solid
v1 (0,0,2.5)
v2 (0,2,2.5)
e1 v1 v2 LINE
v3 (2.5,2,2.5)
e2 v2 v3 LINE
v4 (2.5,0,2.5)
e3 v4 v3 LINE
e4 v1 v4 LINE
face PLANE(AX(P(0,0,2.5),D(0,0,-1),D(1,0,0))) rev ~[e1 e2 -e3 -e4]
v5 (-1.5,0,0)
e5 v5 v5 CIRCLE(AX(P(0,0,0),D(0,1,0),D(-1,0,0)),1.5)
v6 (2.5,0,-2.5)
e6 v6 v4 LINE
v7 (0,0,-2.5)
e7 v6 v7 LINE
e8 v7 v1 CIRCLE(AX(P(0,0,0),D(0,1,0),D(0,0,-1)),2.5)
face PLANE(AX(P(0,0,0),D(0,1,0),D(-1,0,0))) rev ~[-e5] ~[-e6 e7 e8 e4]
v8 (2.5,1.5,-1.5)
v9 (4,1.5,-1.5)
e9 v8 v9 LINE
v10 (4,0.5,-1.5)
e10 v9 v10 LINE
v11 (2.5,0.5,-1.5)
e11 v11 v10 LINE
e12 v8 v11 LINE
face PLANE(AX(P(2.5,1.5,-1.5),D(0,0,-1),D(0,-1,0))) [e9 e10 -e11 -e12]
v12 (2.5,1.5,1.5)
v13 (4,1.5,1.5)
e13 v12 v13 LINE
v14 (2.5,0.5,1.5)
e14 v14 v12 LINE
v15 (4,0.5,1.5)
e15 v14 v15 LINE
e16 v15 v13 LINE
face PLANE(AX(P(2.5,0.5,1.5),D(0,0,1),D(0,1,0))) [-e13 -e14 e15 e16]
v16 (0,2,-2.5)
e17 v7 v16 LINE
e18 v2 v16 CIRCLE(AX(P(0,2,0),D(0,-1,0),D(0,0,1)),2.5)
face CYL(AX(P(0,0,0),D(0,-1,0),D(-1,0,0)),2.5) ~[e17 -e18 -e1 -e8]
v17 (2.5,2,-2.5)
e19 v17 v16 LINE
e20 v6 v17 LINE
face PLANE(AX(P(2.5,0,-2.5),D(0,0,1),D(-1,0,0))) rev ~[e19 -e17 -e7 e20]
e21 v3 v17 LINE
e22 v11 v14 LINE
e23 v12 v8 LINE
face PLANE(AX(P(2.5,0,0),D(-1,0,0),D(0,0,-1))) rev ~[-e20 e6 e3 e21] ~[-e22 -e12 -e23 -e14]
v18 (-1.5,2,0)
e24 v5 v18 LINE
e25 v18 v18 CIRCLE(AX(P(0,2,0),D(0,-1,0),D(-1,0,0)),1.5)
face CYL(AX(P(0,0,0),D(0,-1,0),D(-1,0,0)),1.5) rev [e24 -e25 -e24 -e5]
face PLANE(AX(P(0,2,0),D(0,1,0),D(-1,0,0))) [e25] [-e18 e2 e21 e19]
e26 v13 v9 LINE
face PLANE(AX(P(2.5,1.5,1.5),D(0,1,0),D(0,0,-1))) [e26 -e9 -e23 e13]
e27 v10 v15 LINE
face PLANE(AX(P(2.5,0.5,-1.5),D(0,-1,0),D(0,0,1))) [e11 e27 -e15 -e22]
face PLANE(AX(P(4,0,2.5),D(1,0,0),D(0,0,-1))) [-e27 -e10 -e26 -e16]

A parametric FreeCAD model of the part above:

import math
import FreeCAD as App
import Part
import Sketcher
Q = App.Units.Quantity

doc = App.newDocument("Part")
body = doc.addObject("PartDesign::Body", "Body")

sketch1 = body.newObject("Sketcher::SketchObject", "Sketch")
sketch1.AttachmentSupport = (doc.getObject("XZ_Plane"), [""])
sketch1.MapMode = "FlatFace"
sketch1.addGeometry([
    Part.LineSegment(App.Vector(0, 2.5, 0), App.Vector(2.5, 2.5, 0)),
    Part.LineSegment(App.Vector(2.5, 2.5, 0), App.Vector(2.5, -2.5, 0)),
    Part.LineSegment(App.Vector(2.5, -2.5, 0), App.Vector(0, -2.5, 0)),
    Part.ArcOfCircle(Part.Circle(App.Vector(0, 0, 0), App.Vector(0, 0, 1), 2.5), math.radians(90), math.radians(270)),
    Part.Circle(App.Vector(0, 0, 0), App.Vector(0, 0, 1), 1.5),
], False)
sketch1.addConstraint([
    Sketcher.Constraint("Coincident", 0, 2, 1, 1),
    Sketcher.Constraint("Coincident", 1, 2, 2, 1),
    Sketcher.Constraint("Tangent", 2, 2, 3, 2),
    Sketcher.Constraint("Tangent", 3, 1, 0, 1),
    Sketcher.Constraint("Horizontal", 0),
    Sketcher.Constraint("Vertical", 1),
    Sketcher.Constraint("Horizontal", 2),
    Sketcher.Constraint("Coincident", 3, 3, -1, 1),
    Sketcher.Constraint("Coincident", 4, 3, -1, 1),
    Sketcher.Constraint("Diameter", 4, Q("3 mm")),
    Sketcher.Constraint("Radius", 3, Q("2.5 mm")),
    Sketcher.Constraint("DistanceX", 0, 1, 0, 2, Q("2.5 mm")),
])
pad1 = body.newObject("PartDesign::Pad", "Pad")
pad1.Profile = sketch1
pad1.Length = 2
pad1.Reversed = True

sketch2 = body.newObject("Sketcher::SketchObject", "Sketch001")
sketch2.AttachmentSupport = (doc.getObject("YZ_Plane"), [""])
sketch2.MapMode = "FlatFace"
sketch2.AttachmentOffset = App.Placement(App.Vector(0, 0, 2.5), App.Rotation())
sketch2.addGeometry([
    Part.LineSegment(App.Vector(1.5, -1.5, 0), App.Vector(1.5, 1.5, 0)),
    Part.LineSegment(App.Vector(1.5, 1.5, 0), App.Vector(0.5, 1.5, 0)),
    Part.LineSegment(App.Vector(0.5, 1.5, 0), App.Vector(0.5, -1.5, 0)),
    Part.LineSegment(App.Vector(0.5, -1.5, 0), App.Vector(1.5, -1.5, 0)),
], False)
sketch2.addConstraint([
    Sketcher.Constraint("Coincident", 0, 2, 1, 1),
    Sketcher.Constraint("Coincident", 1, 2, 2, 1),
    Sketcher.Constraint("Coincident", 2, 2, 3, 1),
    Sketcher.Constraint("Coincident", 3, 2, 0, 1),
    Sketcher.Constraint("Vertical", 0),
    Sketcher.Constraint("Horizontal", 1),
    Sketcher.Constraint("Vertical", 2),
    Sketcher.Constraint("Horizontal", 3),
    Sketcher.Constraint("DistanceX", 1, 2, 1, 1, Q("1 mm")),
    Sketcher.Constraint("DistanceY", 0, 1, 0, 2, Q("3 mm")),
    Sketcher.Constraint("DistanceX", -1, 1, 1, 2, Q("0.5 mm")),
    Sketcher.Constraint("DistanceY", -1, 1, 0, 2, Q("1.5 mm")),
])
pad2 = body.newObject("PartDesign::Pad", "Pad001")
pad2.Profile = sketch2
pad2.Length = 1.5

doc.recompute()
